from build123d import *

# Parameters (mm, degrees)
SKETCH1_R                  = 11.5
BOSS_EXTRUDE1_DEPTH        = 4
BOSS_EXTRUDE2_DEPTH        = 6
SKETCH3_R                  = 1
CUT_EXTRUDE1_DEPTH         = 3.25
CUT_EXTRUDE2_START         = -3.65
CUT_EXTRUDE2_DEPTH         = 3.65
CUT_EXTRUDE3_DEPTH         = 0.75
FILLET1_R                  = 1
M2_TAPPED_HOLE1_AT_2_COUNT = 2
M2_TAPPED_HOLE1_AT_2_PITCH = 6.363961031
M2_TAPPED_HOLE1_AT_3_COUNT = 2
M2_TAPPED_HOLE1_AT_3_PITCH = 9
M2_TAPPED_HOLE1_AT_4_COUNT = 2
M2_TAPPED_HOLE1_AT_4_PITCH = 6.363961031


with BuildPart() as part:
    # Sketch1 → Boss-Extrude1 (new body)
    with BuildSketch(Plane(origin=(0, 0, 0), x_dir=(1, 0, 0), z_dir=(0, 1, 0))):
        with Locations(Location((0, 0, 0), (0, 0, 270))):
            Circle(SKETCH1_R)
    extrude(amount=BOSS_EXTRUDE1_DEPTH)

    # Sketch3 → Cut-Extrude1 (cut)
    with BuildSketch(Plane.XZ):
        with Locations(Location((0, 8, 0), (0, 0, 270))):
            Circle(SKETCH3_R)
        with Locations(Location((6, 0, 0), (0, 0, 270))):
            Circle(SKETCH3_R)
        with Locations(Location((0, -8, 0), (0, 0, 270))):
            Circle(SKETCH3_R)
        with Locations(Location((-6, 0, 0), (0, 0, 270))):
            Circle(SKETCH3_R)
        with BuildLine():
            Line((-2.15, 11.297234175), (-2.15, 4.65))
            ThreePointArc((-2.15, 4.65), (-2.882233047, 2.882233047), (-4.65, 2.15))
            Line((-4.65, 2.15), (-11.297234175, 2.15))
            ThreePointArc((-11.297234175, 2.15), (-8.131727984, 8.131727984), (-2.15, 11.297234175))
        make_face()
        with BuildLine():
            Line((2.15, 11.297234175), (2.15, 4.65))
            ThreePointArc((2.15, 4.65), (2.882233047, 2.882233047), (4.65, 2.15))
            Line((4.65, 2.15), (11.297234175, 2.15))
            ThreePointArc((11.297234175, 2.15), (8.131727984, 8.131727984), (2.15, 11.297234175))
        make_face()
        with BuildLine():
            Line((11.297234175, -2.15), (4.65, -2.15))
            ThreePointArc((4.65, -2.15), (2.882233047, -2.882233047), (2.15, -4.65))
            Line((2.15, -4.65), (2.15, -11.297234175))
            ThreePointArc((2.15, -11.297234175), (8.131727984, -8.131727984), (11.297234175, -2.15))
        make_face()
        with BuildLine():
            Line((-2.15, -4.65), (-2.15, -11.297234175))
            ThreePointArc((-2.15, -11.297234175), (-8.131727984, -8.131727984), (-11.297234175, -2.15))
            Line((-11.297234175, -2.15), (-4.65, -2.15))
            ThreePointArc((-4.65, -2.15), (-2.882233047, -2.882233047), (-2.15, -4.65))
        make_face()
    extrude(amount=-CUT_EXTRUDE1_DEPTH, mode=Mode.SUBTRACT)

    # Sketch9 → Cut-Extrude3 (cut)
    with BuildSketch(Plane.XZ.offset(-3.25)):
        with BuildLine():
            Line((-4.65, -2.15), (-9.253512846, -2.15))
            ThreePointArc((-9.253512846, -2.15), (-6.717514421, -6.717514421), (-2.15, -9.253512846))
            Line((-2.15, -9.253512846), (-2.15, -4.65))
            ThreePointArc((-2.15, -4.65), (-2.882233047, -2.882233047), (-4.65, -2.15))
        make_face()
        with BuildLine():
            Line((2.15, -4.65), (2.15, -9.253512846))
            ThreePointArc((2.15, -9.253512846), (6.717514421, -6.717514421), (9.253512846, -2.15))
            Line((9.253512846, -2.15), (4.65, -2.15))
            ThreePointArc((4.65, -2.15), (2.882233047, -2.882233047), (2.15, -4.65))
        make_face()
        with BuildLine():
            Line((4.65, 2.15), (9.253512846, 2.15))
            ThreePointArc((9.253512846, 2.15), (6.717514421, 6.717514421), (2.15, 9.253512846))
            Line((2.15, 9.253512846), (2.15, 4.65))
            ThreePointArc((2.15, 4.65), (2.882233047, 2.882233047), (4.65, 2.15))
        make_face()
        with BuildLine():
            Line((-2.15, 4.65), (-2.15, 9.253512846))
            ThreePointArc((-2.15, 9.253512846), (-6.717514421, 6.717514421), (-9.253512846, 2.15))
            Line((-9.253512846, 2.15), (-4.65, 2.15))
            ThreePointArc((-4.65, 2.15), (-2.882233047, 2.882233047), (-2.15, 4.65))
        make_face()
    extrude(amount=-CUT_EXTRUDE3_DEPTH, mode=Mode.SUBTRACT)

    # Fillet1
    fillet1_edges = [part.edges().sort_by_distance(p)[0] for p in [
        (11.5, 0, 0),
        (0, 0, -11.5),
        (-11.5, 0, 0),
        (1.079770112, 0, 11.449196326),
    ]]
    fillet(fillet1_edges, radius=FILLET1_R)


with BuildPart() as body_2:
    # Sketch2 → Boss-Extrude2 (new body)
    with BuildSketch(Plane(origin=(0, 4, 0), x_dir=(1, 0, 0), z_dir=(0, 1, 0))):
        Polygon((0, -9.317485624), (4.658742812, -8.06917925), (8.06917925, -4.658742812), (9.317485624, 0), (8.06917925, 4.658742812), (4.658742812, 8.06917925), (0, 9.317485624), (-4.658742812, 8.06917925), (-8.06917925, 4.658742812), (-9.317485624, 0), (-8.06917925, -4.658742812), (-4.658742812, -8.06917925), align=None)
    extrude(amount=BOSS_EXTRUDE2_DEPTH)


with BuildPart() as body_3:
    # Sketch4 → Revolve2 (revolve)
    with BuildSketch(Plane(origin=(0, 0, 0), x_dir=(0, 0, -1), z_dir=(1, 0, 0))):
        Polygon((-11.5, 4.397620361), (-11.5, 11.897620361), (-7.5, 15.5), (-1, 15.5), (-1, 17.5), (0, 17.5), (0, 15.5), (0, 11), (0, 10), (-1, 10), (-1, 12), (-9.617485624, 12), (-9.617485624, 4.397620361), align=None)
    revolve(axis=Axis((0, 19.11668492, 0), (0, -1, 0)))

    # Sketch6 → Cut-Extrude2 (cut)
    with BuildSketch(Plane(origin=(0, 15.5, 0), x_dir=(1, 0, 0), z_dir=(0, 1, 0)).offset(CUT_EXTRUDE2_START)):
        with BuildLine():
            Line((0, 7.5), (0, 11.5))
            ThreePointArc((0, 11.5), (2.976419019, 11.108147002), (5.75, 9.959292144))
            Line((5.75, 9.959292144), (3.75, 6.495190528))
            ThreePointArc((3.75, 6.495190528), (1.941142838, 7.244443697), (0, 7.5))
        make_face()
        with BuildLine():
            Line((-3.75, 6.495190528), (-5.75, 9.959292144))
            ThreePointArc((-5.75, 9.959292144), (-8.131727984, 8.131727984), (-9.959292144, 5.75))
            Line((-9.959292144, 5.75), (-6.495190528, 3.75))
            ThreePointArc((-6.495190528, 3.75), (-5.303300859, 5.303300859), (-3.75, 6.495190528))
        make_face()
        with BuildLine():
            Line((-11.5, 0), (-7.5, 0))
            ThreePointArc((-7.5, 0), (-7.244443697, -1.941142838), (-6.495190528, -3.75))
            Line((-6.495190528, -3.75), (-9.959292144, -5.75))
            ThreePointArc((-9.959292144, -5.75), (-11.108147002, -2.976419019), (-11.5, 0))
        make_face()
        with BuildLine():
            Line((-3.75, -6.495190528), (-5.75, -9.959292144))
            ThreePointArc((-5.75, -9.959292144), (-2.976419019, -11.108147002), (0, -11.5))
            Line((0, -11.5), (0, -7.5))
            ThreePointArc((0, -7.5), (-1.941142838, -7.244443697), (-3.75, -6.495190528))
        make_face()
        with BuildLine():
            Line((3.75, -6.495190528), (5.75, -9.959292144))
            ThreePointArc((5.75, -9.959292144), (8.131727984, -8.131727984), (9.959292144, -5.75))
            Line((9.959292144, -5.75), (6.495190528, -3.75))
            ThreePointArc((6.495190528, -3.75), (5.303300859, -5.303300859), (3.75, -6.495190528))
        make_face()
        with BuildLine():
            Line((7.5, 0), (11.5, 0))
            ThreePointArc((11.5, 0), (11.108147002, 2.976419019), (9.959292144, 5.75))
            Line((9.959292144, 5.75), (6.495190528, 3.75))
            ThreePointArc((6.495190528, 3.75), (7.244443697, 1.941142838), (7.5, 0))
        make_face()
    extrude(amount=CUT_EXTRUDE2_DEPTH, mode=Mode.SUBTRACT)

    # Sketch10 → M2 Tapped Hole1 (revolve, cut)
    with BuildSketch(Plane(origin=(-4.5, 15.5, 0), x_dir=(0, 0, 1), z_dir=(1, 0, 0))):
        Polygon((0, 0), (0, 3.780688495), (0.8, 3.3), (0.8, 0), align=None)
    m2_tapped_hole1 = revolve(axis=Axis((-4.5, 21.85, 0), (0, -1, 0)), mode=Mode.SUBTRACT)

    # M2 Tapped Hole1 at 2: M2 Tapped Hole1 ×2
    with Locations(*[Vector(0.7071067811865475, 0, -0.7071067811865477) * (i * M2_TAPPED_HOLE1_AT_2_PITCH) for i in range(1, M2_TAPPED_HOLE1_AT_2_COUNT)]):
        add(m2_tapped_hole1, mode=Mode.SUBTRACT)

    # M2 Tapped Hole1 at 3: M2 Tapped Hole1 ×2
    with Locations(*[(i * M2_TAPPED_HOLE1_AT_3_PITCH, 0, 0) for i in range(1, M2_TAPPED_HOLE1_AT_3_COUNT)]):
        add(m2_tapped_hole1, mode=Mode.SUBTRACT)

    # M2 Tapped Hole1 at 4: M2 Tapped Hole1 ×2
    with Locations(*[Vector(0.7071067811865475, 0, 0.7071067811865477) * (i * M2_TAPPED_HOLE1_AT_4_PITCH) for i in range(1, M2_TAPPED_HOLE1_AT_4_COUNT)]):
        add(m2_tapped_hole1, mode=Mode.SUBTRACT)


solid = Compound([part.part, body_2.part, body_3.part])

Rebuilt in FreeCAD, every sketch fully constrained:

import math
import FreeCAD as App
import Part
import Sketcher

V = App.Vector
Q = App.Units.Quantity


def edges_at(feature, points):
    """Names of the edges that pass closest to the given points."""
    edges = feature.Shape.Edges
    near = lambda p: min(range(len(edges)), key=lambda i: edges[i].distToShape(Part.Vertex(*p))[0])
    return sorted({f"Edge{near(p) + 1}" for p in points})

doc = App.newDocument("Part")
body = doc.addObject("PartDesign::Body", "Body")

# Sketch on XZ plane
sketch1 = body.newObject("Sketcher::SketchObject", "Sketch")
sketch1.AttachmentSupport = (doc.getObject("XZ_Plane"), [""])
sketch1.MapMode = "FlatFace"
sketch1.addGeometry(Part.Circle(V(0, 0, 0), V(0, 0, 1), 12), False)
sketch1.addConstraint(Sketcher.Constraint("Coincident", 0, 3, -1, 1))
sketch1.addConstraint(Sketcher.Constraint("Diameter", 0, Q("23 mm")))
pad1 = body.newObject("PartDesign::Pad", "Pad")
pad1.Profile = sketch1
pad1.Length = 4
pad1.Reversed = True

# Sketch on XZ plane
sketch2 = body.newObject("Sketcher::SketchObject", "Sketch001")
sketch2.AttachmentSupport = (doc.getObject("XZ_Plane"), [""])
sketch2.MapMode = "FlatFace"
sketch2.addGeometry(Part.Circle(V(0, 8, 0), V(0, 0, 1), 1), False)
sketch2.addGeometry(Part.Circle(V(6, 0, 0), V(0, 0, 1), 1), False)
sketch2.addGeometry(Part.Circle(V(0, -8, 0), V(0, 0, 1), 1), False)
sketch2.addGeometry(Part.Circle(V(-6, 0, 0), V(0, 0, 1), 1), False)
sketch2.addGeometry(Part.LineSegment(V(-2.1, 4.7, 0), V(-2.1, 11.3, 0)), False)
sketch2.addGeometry(Part.ArcOfCircle(Part.Circle(V(0, 0, 0), V(0, 0, 1), 11.5), math.radians(101), math.radians(169)), False)
sketch2.addGeometry(Part.LineSegment(V(-11.3, 2.1, 0), V(-4.7, 2.1, 0)), False)
sketch2.addGeometry(Part.ArcOfCircle(Part.Circle(V(-4.7, 4.7, 0), V(0, 0, 1), 2.5), math.radians(-90), math.radians(0)), False)
sketch2.addGeometry(Part.LineSegment(V(2.1, 11.3, 0), V(2.1, 4.7, 0)), False)
sketch2.addGeometry(Part.ArcOfCircle(Part.Circle(V(4.7, 4.7, 0), V(0, 0, 1), 2.5), math.radians(180), math.radians(270)), False)
sketch2.addGeometry(Part.LineSegment(V(4.7, 2.1, 0), V(11.3, 2.1, 0)), False)
sketch2.addGeometry(Part.ArcOfCircle(Part.Circle(V(0, 0, 0), V(0, 0, 1), 11.5), math.radians(11), math.radians(79)), False)
sketch2.addGeometry(Part.LineSegment(V(11.3, -2.1, 0), V(4.7, -2.1, 0)), False)
sketch2.addGeometry(Part.ArcOfCircle(Part.Circle(V(4.7, -4.7, 0), V(0, 0, 1), 2.5), math.radians(90), math.radians(180)), False)
sketch2.addGeometry(Part.LineSegment(V(2.1, -4.7, 0), V(2.1, -11.3, 0)), False)
sketch2.addGeometry(Part.ArcOfCircle(Part.Circle(V(0, 0, 0), V(0, 0, 1), 11.5), math.radians(-79), math.radians(-11)), False)
sketch2.addGeometry(Part.LineSegment(V(-2.1, -11.3, 0), V(-2.1, -4.7, 0)), False)
sketch2.addGeometry(Part.ArcOfCircle(Part.Circle(V(-4.7, -4.7, 0), V(0, 0, 1), 2.5), math.radians(0), math.radians(90)), False)
sketch2.addGeometry(Part.LineSegment(V(-4.7, -2.1, 0), V(-11.3, -2.1, 0)), False)
sketch2.addGeometry(Part.ArcOfCircle(Part.Circle(V(0, 0, 0), V(0, 0, 1), 11.5), math.radians(-169), math.radians(-101)), False)
sketch2.addConstraint(Sketcher.Constraint("Coincident", 4, 2, 5, 1))
sketch2.addConstraint(Sketcher.Constraint("Coincident", 5, 2, 6, 1))
sketch2.addConstraint(Sketcher.Constraint("Tangent", 6, 2, 7, 1))
sketch2.addConstraint(Sketcher.Constraint("Tangent", 7, 2, 4, 1))
sketch2.addConstraint(Sketcher.Constraint("Tangent", 8, 2, 9, 1))
sketch2.addConstraint(Sketcher.Constraint("Tangent", 9, 2, 10, 1))
sketch2.addConstraint(Sketcher.Constraint("Coincident", 10, 2, 11, 1))
sketch2.addConstraint(Sketcher.Constraint("Coincident", 11, 2, 8, 1))
sketch2.addConstraint(Sketcher.Constraint("Tangent", 12, 2, 13, 1))
sketch2.addConstraint(Sketcher.Constraint("Tangent", 13, 2, 14, 1))
sketch2.addConstraint(Sketcher.Constraint("Coincident", 14, 2, 15, 1))
sketch2.addConstraint(Sketcher.Constraint("Coincident", 15, 2, 12, 1))
sketch2.addConstraint(Sketcher.Constraint("Tangent", 16, 2, 17, 1))
sketch2.addConstraint(Sketcher.Constraint("Tangent", 17, 2, 18, 1))
sketch2.addConstraint(Sketcher.Constraint("Coincident", 18, 2, 19, 1))
sketch2.addConstraint(Sketcher.Constraint("Coincident", 19, 2, 16, 1))
sketch2.addConstraint(Sketcher.Constraint("Vertical", 4))
sketch2.addConstraint(Sketcher.Constraint("Horizontal", 6))
sketch2.addConstraint(Sketcher.Constraint("Vertical", 8))
sketch2.addConstraint(Sketcher.Constraint("Horizontal", 10))
sketch2.addConstraint(Sketcher.Constraint("Horizontal", 12))
sketch2.addConstraint(Sketcher.Constraint("Vertical", 14))
sketch2.addConstraint(Sketcher.Constraint("Vertical", 16))
sketch2.addConstraint(Sketcher.Constraint("Horizontal", 18))
sketch2.addConstraint(Sketcher.Constraint("Coincident", 5, 3, -1, 1))
sketch2.addConstraint(Sketcher.Constraint("Coincident", 11, 3, -1, 1))
sketch2.addConstraint(Sketcher.Constraint("Coincident", 15, 3, -1, 1))
sketch2.addConstraint(Sketcher.Constraint("Coincident", 19, 3, -1, 1))
sketch2.addConstraint(Sketcher.Constraint("Equal", 0, 1))
sketch2.addConstraint(Sketcher.Constraint("Equal", 1, 2))
sketch2.addConstraint(Sketcher.Constraint("Equal", 2, 3))
sketch2.addConstraint(Sketcher.Constraint("Equal", 7, 9))
sketch2.addConstraint(Sketcher.Constraint("Equal", 5, 11))
sketch2.addConstraint(Sketcher.Constraint("Equal", 9, 13))
sketch2.addConstraint(Sketcher.Constraint("Equal", 11, 15))
sketch2.addConstraint(Sketcher.Constraint("Equal", 13, 17))
sketch2.addConstraint(Sketcher.Constraint("Equal", 15, 19))
sketch2.addConstraint(Sketcher.Constraint("Symmetric", 0, 3, 2, 3, -1, 1))
sketch2.addConstraint(Sketcher.Constraint("Symmetric", 1, 3, 3, 3, -1, 1))
sketch2.addConstraint(Sketcher.Constraint("Symmetric", 7, 3, 13, 3, -1, 1))
sketch2.addConstraint(Sketcher.Constraint("Symmetric", 9, 3, 17, 3, -1, 1))
sketch2.addConstraint(Sketcher.Constraint("Symmetric", 7, 3, 9, 3, -2))
sketch2.addConstraint(Sketcher.Constraint("PointOnObject", 0, 3, -2))
sketch2.addConstraint(Sketcher.Constraint("PointOnObject", 1, 3, -1))
sketch2.addConstraint(Sketcher.Constraint("Equal", 18, 4))
sketch2.addConstraint(Sketcher.Constraint("Diameter", 0, Q("2 mm")))
sketch2.addConstraint(Sketcher.Constraint("Radius", 5, Q("11.5 mm")))
sketch2.addConstraint(Sketcher.Constraint("Radius", 7, Q("2.5 mm")))
sketch2.addConstraint(Sketcher.Constraint("DistanceY", -1, 1, 0, 3, Q("8 mm")))
sketch2.addConstraint(Sketcher.Constraint("DistanceX", -1, 1, 1, 3, Q("6 mm")))
sketch2.addConstraint(Sketcher.Constraint("DistanceX", 7, 3, 9, 3, Q("9.3 mm")))
pocket1 = body.newObject("PartDesign::Pocket", "Pocket")
pocket1.Profile = sketch2
pocket1.Length = 3.25

# Sketch on XZ plane
sketch3 = body.newObject("Sketcher::SketchObject", "Sketch002")
sketch3.AttachmentSupport = (doc.getObject("XZ_Plane"), [""])
sketch3.MapMode = "FlatFace"
sketch3.AttachmentOffset = App.Placement(V(0, 0, -3.25), App.Rotation())
sketch3.addGeometry(Part.LineSegment(V(-4.7, -2.1, 0), V(-9.3, -2.1, 0)), False)
sketch3.addGeometry(Part.ArcOfCircle(Part.Circle(V(0, 0, 0), V(0, 0, 1), 9.5), math.radians(-167), math.radians(-103)), False)
sketch3.addGeometry(Part.LineSegment(V(-2.1, -9.3, 0), V(-2.1, -4.7, 0)), False)
sketch3.addGeometry(Part.ArcOfCircle(Part.Circle(V(-4.7, -4.7, 0), V(0, 0, 1), 2.5), math.radians(0), math.radians(90)), False)
sketch3.addGeometry(Part.LineSegment(V(2.1, -4.7, 0), V(2.1, -9.3, 0)), False)
sketch3.addGeometry(Part.ArcOfCircle(Part.Circle(V(0, 0, 0), V(0, 0, 1), 9.5), math.radians(-77), math.radians(-13)), False)
sketch3.addGeometry(Part.LineSegment(V(9.3, -2.1, 0), V(4.7, -2.1, 0)), False)
sketch3.addGeometry(Part.ArcOfCircle(Part.Circle(V(4.7, -4.7, 0), V(0, 0, 1), 2.5), math.radians(90), math.radians(180)), False)
sketch3.addGeometry(Part.LineSegment(V(4.7, 2.1, 0), V(9.3, 2.1, 0)), False)
sketch3.addGeometry(Part.ArcOfCircle(Part.Circle(V(0, 0, 0), V(0, 0, 1), 9.5), math.radians(13), math.radians(77)), False)
sketch3.addGeometry(Part.LineSegment(V(2.1, 9.3, 0), V(2.1, 4.7, 0)), False)
sketch3.addGeometry(Part.ArcOfCircle(Part.Circle(V(4.7, 4.7, 0), V(0, 0, 1), 2.5), math.radians(180), math.radians(270)), False)
sketch3.addGeometry(Part.LineSegment(V(-2.1, 4.7, 0), V(-2.1, 9.3, 0)), False)
sketch3.addGeometry(Part.ArcOfCircle(Part.Circle(V(0, 0, 0), V(0, 0, 1), 9.5), math.radians(103), math.radians(167)), False)
sketch3.addGeometry(Part.LineSegment(V(-9.3, 2.1, 0), V(-4.7, 2.1, 0)), False)
sketch3.addGeometry(Part.ArcOfCircle(Part.Circle(V(-4.7, 4.7, 0), V(0, 0, 1), 2.5), math.radians(-90), math.radians(0)), False)
sketch3.addConstraint(Sketcher.Constraint("Coincident", 0, 2, 1, 1))
sketch3.addConstraint(Sketcher.Constraint("Coincident", 1, 2, 2, 1))
sketch3.addConstraint(Sketcher.Constraint("Tangent", 2, 2, 3, 1))
sketch3.addConstraint(Sketcher.Constraint("Tangent", 3, 2, 0, 1))
sketch3.addConstraint(Sketcher.Constraint("Coincident", 4, 2, 5, 1))
sketch3.addConstraint(Sketcher.Constraint("Coincident", 5, 2, 6, 1))
sketch3.addConstraint(Sketcher.Constraint("Tangent", 6, 2, 7, 1))
sketch3.addConstraint(Sketcher.Constraint("Tangent", 7, 2, 4, 1))
sketch3.addConstraint(Sketcher.Constraint("Coincident", 8, 2, 9, 1))
sketch3.addConstraint(Sketcher.Constraint("Coincident", 9, 2, 10, 1))
sketch3.addConstraint(Sketcher.Constraint("Tangent", 10, 2, 11, 1))
sketch3.addConstraint(Sketcher.Constraint("Tangent", 11, 2, 8, 1))
sketch3.addConstraint(Sketcher.Constraint("Coincident", 12, 2, 13, 1))
sketch3.addConstraint(Sketcher.Constraint("Coincident", 13, 2, 14, 1))
sketch3.addConstraint(Sketcher.Constraint("Tangent", 14, 2, 15, 1))
sketch3.addConstraint(Sketcher.Constraint("Tangent", 15, 2, 12, 1))
sketch3.addConstraint(Sketcher.Constraint("Horizontal", 0))
sketch3.addConstraint(Sketcher.Constraint("Vertical", 2))
sketch3.addConstraint(Sketcher.Constraint("Vertical", 4))
sketch3.addConstraint(Sketcher.Constraint("Horizontal", 6))
sketch3.addConstraint(Sketcher.Constraint("Horizontal", 8))
sketch3.addConstraint(Sketcher.Constraint("Vertical", 10))
sketch3.addConstraint(Sketcher.Constraint("Vertical", 12))
sketch3.addConstraint(Sketcher.Constraint("Horizontal", 14))
sketch3.addConstraint(Sketcher.Constraint("Coincident", 1, 3, -1, 1))
sketch3.addConstraint(Sketcher.Constraint("Coincident", 5, 3, -1, 1))
sketch3.addConstraint(Sketcher.Constraint("Coincident", 9, 3, -1, 1))
sketch3.addConstraint(Sketcher.Constraint("Coincident", 13, 3, -1, 1))
sketch3.addConstraint(Sketcher.Constraint("Equal", 1, 5))
sketch3.addConstraint(Sketcher.Constraint("Equal", 3, 7))
sketch3.addConstraint(Sketcher.Constraint("Equal", 5, 9))
sketch3.addConstraint(Sketcher.Constraint("Equal", 7, 11))
sketch3.addConstraint(Sketcher.Constraint("Equal", 9, 13))
sketch3.addConstraint(Sketcher.Constraint("Equal", 11, 15))
sketch3.addConstraint(Sketcher.Constraint("Symmetric", 3, 3, 11, 3, -1, 1))
sketch3.addConstraint(Sketcher.Constraint("Symmetric", 7, 3, 15, 3, -1, 1))
sketch3.addConstraint(Sketcher.Constraint("Symmetric", 3, 3, 7, 3, -2))
sketch3.addConstraint(Sketcher.Constraint("Equal", 14, 2))
sketch3.addConstraint(Sketcher.Constraint("Radius", 1, Q("9.5 mm")))
sketch3.addConstraint(Sketcher.Constraint("Radius", 3, Q("2.5 mm")))
sketch3.addConstraint(Sketcher.Constraint("DistanceX", 3, 3, 7, 3, Q("9.3 mm")))
pocket2 = body.newObject("PartDesign::Pocket", "Pocket001")
pocket2.Profile = sketch3
pocket2.Length = 0.75
doc.recompute()

fillet = body.newObject("PartDesign::Fillet", "Fillet")
fillet.Base = (pocket2, edges_at(pocket2, [
    (11.5, 0, 0),
    (0, 0, -11.5),
    (-11.5, 0, 0),
    (1.08, 0, 11.449),
]))
fillet.Radius = 1
body2 = doc.addObject("PartDesign::Body", "Body001")

# Sketch on XZ plane
sketch4 = body2.newObject("Sketcher::SketchObject", "Sketch003")
sketch4.AttachmentSupport = (doc.getObject("XZ_Plane001"), [""])
sketch4.MapMode = "FlatFace"
sketch4.AttachmentOffset = App.Placement(V(0, 0, -4), App.Rotation())
sketch4.addGeometry(Part.LineSegment(V(0, 9.3, 0), V(4.7, 8.1, 0)), False)
sketch4.addGeometry(Part.LineSegment(V(4.7, 8.1, 0), V(8.1, 4.7, 0)), False)
sketch4.addGeometry(Part.LineSegment(V(8.1, 4.7, 0), V(9.3, 0, 0)), False)
sketch4.addGeometry(Part.LineSegment(V(9.3, 0, 0), V(8.1, -4.7, 0)), False)
sketch4.addGeometry(Part.LineSegment(V(8.1, -4.7, 0), V(4.7, -8.1, 0)), False)
sketch4.addGeometry(Part.LineSegment(V(4.7, -8.1, 0), V(0, -9.3, 0)), False)
sketch4.addGeometry(Part.LineSegment(V(0, -9.3, 0), V(-4.7, -8.1, 0)), False)
sketch4.addGeometry(Part.LineSegment(V(-4.7, -8.1, 0), V(-8.1, -4.7, 0)), False)
sketch4.addGeometry(Part.LineSegment(V(-8.1, -4.7, 0), V(-9.3, 0, 0)), False)
sketch4.addGeometry(Part.LineSegment(V(-9.3, 0, 0), V(-8.1, 4.7, 0)), False)
sketch4.addGeometry(Part.LineSegment(V(-8.1, 4.7, 0), V(-4.7, 8.1, 0)), False)
sketch4.addGeometry(Part.LineSegment(V(-4.7, 8.1, 0), V(0, 9.3, 0)), False)
sketch4.addConstraint(Sketcher.Constraint("Coincident", 0, 2, 1, 1))
sketch4.addConstraint(Sketcher.Constraint("Coincident", 1, 2, 2, 1))
sketch4.addConstraint(Sketcher.Constraint("Coincident", 2, 2, 3, 1))
sketch4.addConstraint(Sketcher.Constraint("Coincident", 3, 2, 4, 1))
sketch4.addConstraint(Sketcher.Constraint("Coincident", 4, 2, 5, 1))
sketch4.addConstraint(Sketcher.Constraint("Coincident", 5, 2, 6, 1))
sketch4.addConstraint(Sketcher.Constraint("Coincident", 6, 2, 7, 1))
sketch4.addConstraint(Sketcher.Constraint("Coincident", 7, 2, 8, 1))
sketch4.addConstraint(Sketcher.Constraint("Coincident", 8, 2, 9, 1))
sketch4.addConstraint(Sketcher.Constraint("Coincident", 9, 2, 10, 1))
sketch4.addConstraint(Sketcher.Constraint("Coincident", 10, 2, 11, 1))
sketch4.addConstraint(Sketcher.Constraint("Coincident", 11, 2, 0, 1))
sketch4.addConstraint(Sketcher.Constraint("Symmetric", 0, 2, 6, 2, -1, 1))
sketch4.addConstraint(Sketcher.Constraint("Symmetric", 1, 2, 7, 2, -1, 1))
sketch4.addConstraint(Sketcher.Constraint("Symmetric", 2, 2, 8, 2, -1, 1))
sketch4.addConstraint(Sketcher.Constraint("Symmetric", 3, 2, 9, 2, -1, 1))
sketch4.addConstraint(Sketcher.Constraint("Symmetric", 4, 2, 10, 2, -1, 1))
sketch4.addConstraint(Sketcher.Constraint("Symmetric", 5, 2, 11, 2, -1, 1))
sketch4.addConstraint(Sketcher.Constraint("Symmetric", 4, 2, 6, 2, -2))
sketch4.addConstraint(Sketcher.Constraint("Symmetric", 3, 2, 7, 2, -2))
sketch4.addConstraint(Sketcher.Constraint("PointOnObject", 2, 2, -1))
sketch4.addConstraint(Sketcher.Constraint("PointOnObject", 5, 2, -2))
sketch4.addConstraint(Sketcher.Constraint("Perpendicular", 0, 3))
sketch4.addConstraint(Sketcher.Constraint("Perpendicular", 1, 4))
sketch4.addConstraint(Sketcher.Constraint("Equal", 0, 1))
sketch4.addConstraint(Sketcher.Constraint("Equal", 1, 2))
sketch4.addConstraint(Sketcher.Constraint("Angle", 0, Q("-15 deg")))
sketch4.addConstraint(Sketcher.Constraint("DistanceY", -1, 1, 0, 2, Q("8.069179 mm")))
pad2 = body2.newObject("PartDesign::Pad", "Pad001")
pad2.Profile = sketch4
pad2.Length = 6
pad2.Reversed = True
body3 = doc.addObject("PartDesign::Body", "Body002")

# Sketch on YZ plane
sketch5 = body3.newObject("Sketcher::SketchObject", "Sketch004")
sketch5.AttachmentSupport = (doc.getObject("YZ_Plane002"), [""])
sketch5.MapMode = "FlatFace"
sketch5.addGeometry(Part.LineSegment(V(11.9, 11.5, 0), V(4.4, 11.5, 0)), False)
sketch5.addGeometry(Part.LineSegment(V(4.4, 11.5, 0), V(4.4, 9.6, 0)), False)
sketch5.addGeometry(Part.LineSegment(V(4.4, 9.6, 0), V(12, 9.6, 0)), False)
sketch5.addGeometry(Part.LineSegment(V(12, 9.6, 0), V(12, 1, 0)), False)
sketch5.addGeometry(Part.LineSegment(V(12, 1, 0), V(10, 1, 0)), False)
sketch5.addGeometry(Part.LineSegment(V(10, 1, 0), V(10, 0, 0)), False)
sketch5.addGeometry(Part.LineSegment(V(10, 0, 0), V(17.5, 0, 0)), False)
sketch5.addGeometry(Part.LineSegment(V(17.5, 0, 0), V(17.5, 1, 0)), False)
sketch5.addGeometry(Part.LineSegment(V(17.5, 1, 0), V(15.5, 1, 0)), False)
sketch5.addGeometry(Part.LineSegment(V(15.5, 1, 0), V(15.5, 7.5, 0)), False)
sketch5.addGeometry(Part.LineSegment(V(15.5, 7.5, 0), V(11.9, 11.5, 0)), False)
sketch5.addConstraint(Sketcher.Constraint("Coincident", 0, 2, 1, 1))
sketch5.addConstraint(Sketcher.Constraint("Coincident", 1, 2, 2, 1))
sketch5.addConstraint(Sketcher.Constraint("Coincident", 2, 2, 3, 1))
sketch5.addConstraint(Sketcher.Constraint("Coincident", 3, 2, 4, 1))
sketch5.addConstraint(Sketcher.Constraint("Coincident", 4, 2, 5, 1))
sketch5.addConstraint(Sketcher.Constraint("Coincident", 5, 2, 6, 1))
sketch5.addConstraint(Sketcher.Constraint("Coincident", 6, 2, 7, 1))
sketch5.addConstraint(Sketcher.Constraint("Coincident", 7, 2, 8, 1))
sketch5.addConstraint(Sketcher.Constraint("Coincident", 8, 2, 9, 1))
sketch5.addConstraint(Sketcher.Constraint("Coincident", 9, 2, 10, 1))
sketch5.addConstraint(Sketcher.Constraint("Coincident", 10, 2, 0, 1))
sketch5.addConstraint(Sketcher.Constraint("Horizontal", 0))
sketch5.addConstraint(Sketcher.Constraint("Vertical", 1))
sketch5.addConstraint(Sketcher.Constraint("Horizontal", 2))
sketch5.addConstraint(Sketcher.Constraint("Vertical", 3))
sketch5.addConstraint(Sketcher.Constraint("Horizontal", 4))
sketch5.addConstraint(Sketcher.Constraint("Vertical", 5))
sketch5.addConstraint(Sketcher.Constraint("Horizontal", 6))
sketch5.addConstraint(Sketcher.Constraint("Vertical", 7))
sketch5.addConstraint(Sketcher.Constraint("Horizontal", 8))
sketch5.addConstraint(Sketcher.Constraint("Vertical", 9))
sketch5.addConstraint(Sketcher.Constraint("PointOnObject", 5, 2, -1))
sketch5.addConstraint(Sketcher.Constraint("Horizontal", 4, 2, 7, 2))
sketch5.addConstraint(Sketcher.Constraint("Equal", 0, 6))
sketch5.addConstraint(Sketcher.Constraint("Equal", 4, 8))
sketch5.addConstraint(Sketcher.Constraint("DistanceX", 4, 2, 4, 1, Q("2 mm")))
sketch5.addConstraint(Sketcher.Constraint("DistanceY", 5, 2, 5, 1, Q("1 mm")))
sketch5.addConstraint(Sketcher.Constraint("DistanceX", 0, 2, 0, 1, Q("7.5 mm")))
sketch5.addConstraint(Sketcher.Constraint("DistanceY", 9, 1, 9, 2, Q("6.5 mm")))
sketch5.addConstraint(Sketcher.Constraint("DistanceX", -1, 1, 2, 2, Q("12 mm")))
sketch5.addConstraint(Sketcher.Constraint("DistanceY", 9, 2, 10, 2, Q("4 mm")))
sketch5.addConstraint(Sketcher.Constraint("DistanceX", 2, 1, 2, 2, Q("7.60238 mm")))
sketch5.addConstraint(Sketcher.Constraint("DistanceY", 1, 2, 1, 1, Q("1.882514 mm")))
revolution = body3.newObject("PartDesign::Revolution", "Revolution")
revolution.Profile = sketch5
revolution.ReferenceAxis = (sketch5, ["H_Axis"])
revolution.Angle = 360

# Sketch on XZ plane
sketch6 = body3.newObject("Sketcher::SketchObject", "Sketch005")
sketch6.AttachmentSupport = (doc.getObject("XZ_Plane002"), [""])
sketch6.MapMode = "FlatFace"
sketch6.AttachmentOffset = App.Placement(V(0, 0, -11.85), App.Rotation())
sketch6.addGeometry(Part.LineSegment(V(0, -11.5, 0), V(0, -7.5, 0)), False)
sketch6.addGeometry(Part.ArcOfCircle(Part.Circle(V(0, 0, 0), V(0, 0, 1), 7.5), math.radians(-90), math.radians(-60)), False)
sketch6.addGeometry(Part.LineSegment(V(3.8, -6.5, 0), V(5.8, -10, 0)), False)
sketch6.addGeometry(Part.ArcOfCircle(Part.Circle(V(0, 0, 0), V(0, 0, 1), 11.5), math.radians(-90), math.radians(-60)), False)
sketch6.addGeometry(Part.LineSegment(V(-3.8, -6.5, 0), V(-5.8, -10, 0)), False)
sketch6.addGeometry(Part.ArcOfCircle(Part.Circle(V(0, 0, 0), V(0, 0, 1), 11.5), math.radians(-150), math.radians(-120)), False)
sketch6.addGeometry(Part.LineSegment(V(-10, -5.8, 0), V(-6.5, -3.8, 0)), False)
sketch6.addGeometry(Part.ArcOfCircle(Part.Circle(V(0, 0, 0), V(0, 0, 1), 7.5), math.radians(-150), math.radians(-120)), False)
sketch6.addGeometry(Part.LineSegment(V(-7.5, 0, 0), V(-11.5, 0, 0)), False)
sketch6.addGeometry(Part.ArcOfCircle(Part.Circle(V(0, 0, 0), V(0, 0, 1), 11.5), math.radians(150), math.radians(180)), False)
sketch6.addGeometry(Part.LineSegment(V(-10, 5.8, 0), V(-6.5, 3.8, 0)), False)
sketch6.addGeometry(Part.ArcOfCircle(Part.Circle(V(0, 0, 0), V(0, 0, 1), 7.5), math.radians(150), math.radians(180)), False)
sketch6.addGeometry(Part.LineSegment(V(-3.8, 6.5, 0), V(-5.8, 10, 0)), False)
sketch6.addGeometry(Part.ArcOfCircle(Part.Circle(V(0, 0, 0), V(0, 0, 1), 11.5), math.radians(90), math.radians(120)), False)
sketch6.addGeometry(Part.LineSegment(V(0, 11.5, 0), V(0, 7.5, 0)), False)
sketch6.addGeometry(Part.ArcOfCircle(Part.Circle(V(0, 0, 0), V(0, 0, 1), 7.5), math.radians(90), math.radians(120)), False)
sketch6.addGeometry(Part.LineSegment(V(3.8, 6.5, 0), V(5.8, 10, 0)), False)
sketch6.addGeometry(Part.ArcOfCircle(Part.Circle(V(0, 0, 0), V(0, 0, 1), 11.5), math.radians(30), math.radians(60)), False)
sketch6.addGeometry(Part.LineSegment(V(10, 5.8, 0), V(6.5, 3.8, 0)), False)
sketch6.addGeometry(Part.ArcOfCircle(Part.Circle(V(0, 0, 0), V(0, 0, 1), 7.5), math.radians(30), math.radians(60)), False)
sketch6.addGeometry(Part.LineSegment(V(7.5, 0, 0), V(11.5, 0, 0)), False)
sketch6.addGeometry(Part.ArcOfCircle(Part.Circle(V(0, 0, 0), V(0, 0, 1), 11.5), math.radians(-30), math.radians(0)), False)
sketch6.addGeometry(Part.LineSegment(V(10, -5.8, 0), V(6.5, -3.8, 0)), False)
sketch6.addGeometry(Part.ArcOfCircle(Part.Circle(V(0, 0, 0), V(0, 0, 1), 7.5), math.radians(-30), math.radians(0)), False)
sketch6.addConstraint(Sketcher.Constraint("Coincident", 0, 2, 1, 1))
sketch6.addConstraint(Sketcher.Constraint("Coincident", 1, 2, 2, 1))
sketch6.addConstraint(Sketcher.Constraint("Coincident", 2, 2, 3, 2))
sketch6.addConstraint(Sketcher.Constraint("Coincident", 3, 1, 0, 1))
sketch6.addConstraint(Sketcher.Constraint("Coincident", 4, 2, 5, 2))
sketch6.addConstraint(Sketcher.Constraint("Coincident", 5, 1, 6, 1))
sketch6.addConstraint(Sketcher.Constraint("Coincident", 6, 2, 7, 1))
sketch6.addConstraint(Sketcher.Constraint("Coincident", 7, 2, 4, 1))
sketch6.addConstraint(Sketcher.Constraint("Coincident", 8, 2, 9, 2))
sketch6.addConstraint(Sketcher.Constraint("Coincident", 9, 1, 10, 1))
sketch6.addConstraint(Sketcher.Constraint("Coincident", 10, 2, 11, 1))
sketch6.addConstraint(Sketcher.Constraint("Coincident", 11, 2, 8, 1))
sketch6.addConstraint(Sketcher.Constraint("Coincident", 12, 2, 13, 2))
sketch6.addConstraint(Sketcher.Constraint("Coincident", 13, 1, 14, 1))
sketch6.addConstraint(Sketcher.Constraint("Coincident", 14, 2, 15, 1))
sketch6.addConstraint(Sketcher.Constraint("Coincident", 15, 2, 12, 1))
sketch6.addConstraint(Sketcher.Constraint("Coincident", 16, 2, 17, 2))
sketch6.addConstraint(Sketcher.Constraint("Coincident", 17, 1, 18, 1))
sketch6.addConstraint(Sketcher.Constraint("Coincident", 18, 2, 19, 1))
sketch6.addConstraint(Sketcher.Constraint("Coincident", 19, 2, 16, 1))
sketch6.addConstraint(Sketcher.Constraint("Coincident", 20, 2, 21, 2))
sketch6.addConstraint(Sketcher.Constraint("Coincident", 21, 1, 22, 1))
sketch6.addConstraint(Sketcher.Constraint("Coincident", 22, 2, 23, 1))
sketch6.addConstraint(Sketcher.Constraint("Coincident", 23, 2, 20, 1))
sketch6.addConstraint(Sketcher.Constraint("Vertical", 0))
sketch6.addConstraint(Sketcher.Constraint("Horizontal", 8))
sketch6.addConstraint(Sketcher.Constraint("Vertical", 14))
sketch6.addConstraint(Sketcher.Constraint("Horizontal", 20))
sketch6.addConstraint(Sketcher.Constraint("Coincident", 1, 3, -1, 1))
sketch6.addConstraint(Sketcher.Constraint("Coincident", 3, 3, -1, 1))
sketch6.addConstraint(Sketcher.Constraint("Coincident", 5, 3, -1, 1))
sketch6.addConstraint(Sketcher.Constraint("Coincident", 7, 3, -1, 1))
sketch6.addConstraint(Sketcher.Constraint("Coincident", 9, 3, -1, 1))
sketch6.addConstraint(Sketcher.Constraint("Coincident", 11, 3, -1, 1))
sketch6.addConstraint(Sketcher.Constraint("Coincident", 13, 3, -1, 1))
sketch6.addConstraint(Sketcher.Constraint("Coincident", 15, 3, -1, 1))
sketch6.addConstraint(Sketcher.Constraint("Coincident", 17, 3, -1, 1))
sketch6.addConstraint(Sketcher.Constraint("Coincident", 19, 3, -1, 1))
sketch6.addConstraint(Sketcher.Constraint("Coincident", 21, 3, -1, 1))
sketch6.addConstraint(Sketcher.Constraint("Coincident", 23, 3, -1, 1))
sketch6.addConstraint(Sketcher.Constraint("Equal", 3, 5))
sketch6.addConstraint(Sketcher.Constraint("Equal", 1, 7))
sketch6.addConstraint(Sketcher.Constraint("Equal", 5, 9))
sketch6.addConstraint(Sketcher.Constraint("Equal", 7, 11))
sketch6.addConstraint(Sketcher.Constraint("Equal", 9, 13))
sketch6.addConstraint(Sketcher.Constraint("Equal", 11, 15))
sketch6.addConstraint(Sketcher.Constraint("Equal", 13, 17))
sketch6.addConstraint(Sketcher.Constraint("Equal", 15, 19))
sketch6.addConstraint(Sketcher.Constraint("Equal", 17, 21))
sketch6.addConstraint(Sketcher.Constraint("Equal", 19, 23))
sketch6.addConstraint(Sketcher.Constraint("PointOnObject", 0, 2, -2))
sketch6.addConstraint(Sketcher.Constraint("PointOnObject", 8, 2, -1))
sketch6.addConstraint(Sketcher.Constraint("PointOnObject", 13, 1, -2))
sketch6.addConstraint(Sketcher.Constraint("PointOnObject", 20, 2, -1))
sketch6.addConstraint(Sketcher.Constraint("Perpendicular", 2, 6))
sketch6.addConstraint(Sketcher.Constraint("Perpendicular", 4, 10))
sketch6.addConstraint(Sketcher.Constraint("Perpendicular", 6, 12))
sketch6.addConstraint(Sketcher.Constraint("Perpendicular", 10, 16))
sketch6.addConstraint(Sketcher.Constraint("Perpendicular", 12, 18))
sketch6.addConstraint(Sketcher.Constraint("Perpendicular", 16, 22))
sketch6.addConstraint(Sketcher.Constraint("Horizontal", 2, 2, 4, 2))
sketch6.addConstraint(Sketcher.Constraint("Horizontal", 1, 2, 7, 2))
sketch6.addConstraint(Sketcher.Constraint("Horizontal", 12, 2, 16, 2))
sketch6.addConstraint(Sketcher.Constraint("Horizontal", 9, 1, 17, 1))
sketch6.addConstraint(Sketcher.Constraint("Horizontal", 5, 1, 21, 1))
sketch6.addConstraint(Sketcher.Constraint("Vertical", 5, 1, 9, 1))
sketch6.addConstraint(Sketcher.Constraint("Vertical", 4, 2, 12, 2))
sketch6.addConstraint(Sketcher.Constraint("Radius", 1, Q("7.5 mm")))
sketch6.addConstraint(Sketcher.Constraint("Radius", 3, Q("11.5 mm")))
sketch6.addConstraint(Sketcher.Constraint("Angle", 2, Q("-60 deg")))
sketch6.addConstraint(Sketcher.Constraint("DistanceX", 4, 2, 1, 2, Q("9.5 mm")))
sketch6.addConstraint(Sketcher.Constraint("DistanceY", 6, 2, 9, 1, Q("9.5 mm")))
pocket3 = body3.newObject("PartDesign::Pocket", "Pocket002")
pocket3.Profile = sketch6
pocket3.Length = 3.65

# Sketch on YZ plane
sketch7 = body3.newObject("Sketcher::SketchObject", "Sketch006")
sketch7.AttachmentSupport = (doc.getObject("YZ_Plane002"), [""])
sketch7.MapMode = "FlatFace"
sketch7.AttachmentOffset = App.Placement(V(0, 0, -4.5), App.Rotation())
sketch7.addGeometry(Part.LineSegment(V(11.7, 0, 0), V(15.5, 0, 0)), False)
sketch7.addGeometry(Part.LineSegment(V(15.5, 0, 0), V(15.5, 0.8, 0)), False)
sketch7.addGeometry(Part.LineSegment(V(15.5, 0.8, 0), V(12.2, 0.8, 0)), False)
sketch7.addGeometry(Part.LineSegment(V(12.2, 0.8, 0), V(11.7, 0, 0)), False)
sketch7.addConstraint(Sketcher.Constraint("Coincident", 0, 2, 1, 1))
sketch7.addConstraint(Sketcher.Constraint("Coincident", 1, 2, 2, 1))
sketch7.addConstraint(Sketcher.Constraint("Coincident", 2, 2, 3, 1))
sketch7.addConstraint(Sketcher.Constraint("Coincident", 3, 2, 0, 1))
sketch7.addConstraint(Sketcher.Constraint("Horizontal", 0))
sketch7.addConstraint(Sketcher.Constraint("Vertical", 1))
sketch7.addConstraint(Sketcher.Constraint("Horizontal", 2))
sketch7.addConstraint(Sketcher.Constraint("PointOnObject", 0, 2, -1))
sketch7.addConstraint(Sketcher.Constraint("Angle", 3, Q("-121 deg")))
sketch7.addConstraint(Sketcher.Constraint("DistanceX", 2, 2, 2, 1, Q("3.3 mm")))
sketch7.addConstraint(Sketcher.Constraint("DistanceY", 1, 1, 1, 2, Q("0.8 mm")))
sketch7.addConstraint(Sketcher.Constraint("DistanceX", -1, 1, 0, 2, Q("15.5 mm")))
groove = body3.newObject("PartDesign::Groove", "Groove")
groove.Profile = sketch7
groove.ReferenceAxis = (sketch7, ["H_Axis"])
groove.Angle = 360
doc.recompute()

datumline = body3.newObject("PartDesign::Line", "DatumLine")
datumline.Placement = App.Placement(V(0, 0, 0), App.Rotation(V(0, 0, 1), V(0.707106781, 0, -0.707106781)))
linearpattern = body3.newObject("PartDesign::LinearPattern", "LinearPattern")
linearpattern.Originals = [groove]
linearpattern.Direction = (datumline, [""])
linearpattern.Mode = "offset"
linearpattern.Offset = 6.363961
linearpattern.Occurrences = 2
body3.Tip = linearpattern
doc.recompute()

linearpattern2 = body3.newObject("PartDesign::LinearPattern", "LinearPattern001")
linearpattern2.Originals = [groove]
linearpattern2.Direction = (doc.getObject("X_Axis002"), [""])
linearpattern2.Mode = "offset"
linearpattern2.Offset = 9
linearpattern2.Occurrences = 2
body3.Tip = linearpattern2
doc.recompute()

datumline2 = body3.newObject("PartDesign::Line", "DatumLine001")
datumline2.Placement = App.Placement(V(0, 0, 0), App.Rotation(V(0, 0, 1), V(0.707106781, 0, 0.707106781)))
linearpattern3 = body3.newObject("PartDesign::LinearPattern", "LinearPattern002")
linearpattern3.Originals = [groove]
linearpattern3.Direction = (datumline2, [""])
linearpattern3.Mode = "offset"
linearpattern3.Offset = 6.363961
linearpattern3.Occurrences = 2
body3.Tip = linearpattern3

doc.recompute()
